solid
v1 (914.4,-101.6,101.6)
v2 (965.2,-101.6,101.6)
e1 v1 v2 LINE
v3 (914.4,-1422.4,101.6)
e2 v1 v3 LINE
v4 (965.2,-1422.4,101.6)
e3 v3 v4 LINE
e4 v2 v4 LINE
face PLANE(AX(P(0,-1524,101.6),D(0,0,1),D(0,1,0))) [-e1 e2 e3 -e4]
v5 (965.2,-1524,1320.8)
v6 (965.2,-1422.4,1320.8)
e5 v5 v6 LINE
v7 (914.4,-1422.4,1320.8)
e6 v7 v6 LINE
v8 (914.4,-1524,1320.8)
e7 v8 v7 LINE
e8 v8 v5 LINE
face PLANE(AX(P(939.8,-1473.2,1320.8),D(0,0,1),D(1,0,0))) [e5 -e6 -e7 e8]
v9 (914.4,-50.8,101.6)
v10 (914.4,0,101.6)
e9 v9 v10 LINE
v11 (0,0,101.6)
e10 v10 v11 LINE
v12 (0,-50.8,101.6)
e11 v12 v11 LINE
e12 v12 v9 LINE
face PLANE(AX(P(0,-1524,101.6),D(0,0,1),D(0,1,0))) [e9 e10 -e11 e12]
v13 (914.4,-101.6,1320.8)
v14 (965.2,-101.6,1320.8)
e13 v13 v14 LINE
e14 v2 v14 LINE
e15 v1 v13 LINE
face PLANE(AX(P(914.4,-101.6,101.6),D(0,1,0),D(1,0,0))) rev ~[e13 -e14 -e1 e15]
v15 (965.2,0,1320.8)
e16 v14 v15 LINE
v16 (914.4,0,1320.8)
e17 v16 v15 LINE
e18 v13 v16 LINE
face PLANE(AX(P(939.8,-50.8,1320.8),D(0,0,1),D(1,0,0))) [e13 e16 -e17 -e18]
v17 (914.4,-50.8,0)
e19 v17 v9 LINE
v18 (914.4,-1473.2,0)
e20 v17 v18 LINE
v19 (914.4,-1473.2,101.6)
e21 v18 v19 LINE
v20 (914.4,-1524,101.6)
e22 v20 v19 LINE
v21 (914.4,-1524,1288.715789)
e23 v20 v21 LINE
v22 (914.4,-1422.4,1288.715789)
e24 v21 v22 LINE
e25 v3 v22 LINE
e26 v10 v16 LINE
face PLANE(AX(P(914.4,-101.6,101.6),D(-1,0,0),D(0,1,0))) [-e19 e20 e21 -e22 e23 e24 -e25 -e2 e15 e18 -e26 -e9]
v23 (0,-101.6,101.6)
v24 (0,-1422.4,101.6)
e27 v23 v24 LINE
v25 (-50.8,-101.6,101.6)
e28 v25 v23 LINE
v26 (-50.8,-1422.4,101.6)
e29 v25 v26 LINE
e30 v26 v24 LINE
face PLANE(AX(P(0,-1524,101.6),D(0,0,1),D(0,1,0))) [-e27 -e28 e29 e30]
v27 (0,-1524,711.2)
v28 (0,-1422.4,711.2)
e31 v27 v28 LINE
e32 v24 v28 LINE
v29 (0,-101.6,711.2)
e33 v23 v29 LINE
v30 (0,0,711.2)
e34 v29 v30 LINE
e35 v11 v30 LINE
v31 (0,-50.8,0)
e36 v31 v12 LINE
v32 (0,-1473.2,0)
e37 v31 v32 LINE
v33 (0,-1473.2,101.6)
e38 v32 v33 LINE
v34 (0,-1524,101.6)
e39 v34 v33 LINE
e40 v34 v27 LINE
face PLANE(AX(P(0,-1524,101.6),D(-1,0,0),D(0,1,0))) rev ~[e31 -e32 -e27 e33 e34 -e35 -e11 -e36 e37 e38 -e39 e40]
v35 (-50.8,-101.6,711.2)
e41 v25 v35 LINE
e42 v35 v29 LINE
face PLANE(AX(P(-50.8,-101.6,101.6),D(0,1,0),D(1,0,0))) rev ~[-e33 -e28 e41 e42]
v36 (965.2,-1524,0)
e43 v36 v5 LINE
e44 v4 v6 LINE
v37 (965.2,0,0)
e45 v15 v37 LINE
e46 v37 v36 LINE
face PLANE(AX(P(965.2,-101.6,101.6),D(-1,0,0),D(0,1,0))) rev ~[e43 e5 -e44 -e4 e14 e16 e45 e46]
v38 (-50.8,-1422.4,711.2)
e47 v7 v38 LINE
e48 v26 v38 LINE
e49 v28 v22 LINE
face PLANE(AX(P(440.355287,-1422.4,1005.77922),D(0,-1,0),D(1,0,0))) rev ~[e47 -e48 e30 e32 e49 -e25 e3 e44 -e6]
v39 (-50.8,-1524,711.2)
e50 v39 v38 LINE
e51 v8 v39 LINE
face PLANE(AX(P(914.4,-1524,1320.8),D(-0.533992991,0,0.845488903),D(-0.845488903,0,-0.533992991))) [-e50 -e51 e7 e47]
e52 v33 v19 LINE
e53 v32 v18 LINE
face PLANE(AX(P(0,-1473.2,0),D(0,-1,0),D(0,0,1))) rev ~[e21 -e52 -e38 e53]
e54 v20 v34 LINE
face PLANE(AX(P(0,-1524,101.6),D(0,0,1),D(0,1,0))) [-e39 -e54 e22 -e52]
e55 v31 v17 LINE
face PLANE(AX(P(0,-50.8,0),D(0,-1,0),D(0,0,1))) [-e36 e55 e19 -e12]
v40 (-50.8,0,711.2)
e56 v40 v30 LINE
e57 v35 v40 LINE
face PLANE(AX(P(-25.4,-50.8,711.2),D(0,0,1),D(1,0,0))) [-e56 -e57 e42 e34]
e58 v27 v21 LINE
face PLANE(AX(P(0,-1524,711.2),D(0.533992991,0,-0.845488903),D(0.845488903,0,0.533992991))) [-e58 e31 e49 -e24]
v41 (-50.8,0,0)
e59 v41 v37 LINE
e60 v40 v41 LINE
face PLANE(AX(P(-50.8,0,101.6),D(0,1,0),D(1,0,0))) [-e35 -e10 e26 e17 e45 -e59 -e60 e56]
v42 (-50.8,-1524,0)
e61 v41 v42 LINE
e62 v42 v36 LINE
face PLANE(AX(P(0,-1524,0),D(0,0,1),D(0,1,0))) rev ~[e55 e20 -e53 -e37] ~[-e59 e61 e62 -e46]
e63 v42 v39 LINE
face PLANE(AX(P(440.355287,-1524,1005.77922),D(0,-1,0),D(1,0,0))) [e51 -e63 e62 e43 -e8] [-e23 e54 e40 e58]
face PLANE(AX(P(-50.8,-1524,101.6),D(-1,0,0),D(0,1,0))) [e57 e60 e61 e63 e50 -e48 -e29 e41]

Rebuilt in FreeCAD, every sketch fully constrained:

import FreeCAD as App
import Part
import Sketcher
from FreeCAD import Vector
Q = App.Units.Quantity

doc = App.newDocument("Part")
params = doc.addObject("Spreadsheet::Sheet", "Params")
for row, (alias, value) in enumerate([
    ("sketch1_width", "2 in"),
    ("sketch1_height", "4 in"),
    ("pad1_length", "60 in"),
    ("sketch2_width", "2 in"),
    ("sketch2_height", "4 in"),
    ("pad2_length", "36 in"),
    ("sketch3_width", "2 in"),
    ("sketch3_height", "4 in"),
    ("pad3_length", "60 in"),
    ("sketch4_width", "2 in"),
    ("sketch4_height", "4 in"),
    ("pad4_length", "36 in"),
    ("sketch5_width", "2 in"),
    ("sketch5_height", "4 in"),
    ("pad5_length", "48 in"),
    ("sketch6_width", "2 in"),
    ("sketch6_height", "4 in"),
    ("pad6_length", "48 in"),
    ("sketch7_width", "2 in"),
    ("sketch7_height", "4 in"),
    ("pad7_length", "24 in"),
    ("sketch8_width", "2 in"),
    ("sketch8_height", "4 in"),
    ("pad8_length", "24 in"),
    ("sketch9_width", "2 in"),
    ("pad9_length", "4 in"),
], start=1):
    params.set(f"A{row}", alias)
    params.set(f"B{row}", "=" + value)
    params.setAlias(f"B{row}", alias)

body = doc.addObject("PartDesign::Body", "Body")

# Sketch on XZ plane
sketch1 = doc.addObject("Sketcher::SketchObject", "Sketch")
body.addObject(sketch1)
sketch1.AttachmentSupport = (doc.XZ_Plane, [""])
sketch1.MapMode = "FlatFace"
sketch1.addGeometry([
    Part.LineSegment(Vector(-51, 102, 0), Vector(-51, 0, 0)),
    Part.LineSegment(Vector(-51, 0, 0), Vector(0, 0, 0)),
    Part.LineSegment(Vector(0, 0, 0), Vector(0, 102, 0)),
    Part.LineSegment(Vector(0, 102, 0), Vector(-51, 102, 0)),
], False)
sketch1.addConstraint([
    Sketcher.Constraint("Coincident", 0, 2, 1, 1),
    Sketcher.Constraint("Coincident", 1, 2, 2, 1),
    Sketcher.Constraint("Coincident", 2, 2, 3, 1),
    Sketcher.Constraint("Coincident", 3, 2, 0, 1),
    Sketcher.Constraint("Vertical", 0),
    Sketcher.Constraint("Horizontal", 1),
    Sketcher.Constraint("Vertical", 2),
    Sketcher.Constraint("Horizontal", 3),
    Sketcher.Constraint("Coincident", 1, 2, -1, 1),
    Sketcher.Constraint("DistanceX", 1, 1, 1, 2, Q("2 in")),
    Sketcher.Constraint("DistanceY", 0, 2, 0, 1, Q("4 in")),
])
sketch1.setExpression("Constraints[9]", "Params.sketch1_width")
sketch1.setExpression("Constraints[10]", "Params.sketch1_height")
pad1 = doc.addObject("PartDesign::Pad", "Pad")
body.addObject(pad1)
pad1.Profile = sketch1
pad1.setExpression("Length", "Params.pad1_length")

# Sketch on YZ plane
sketch2 = doc.addObject("Sketcher::SketchObject", "Sketch001")
body.addObject(sketch2)
sketch2.AttachmentSupport = (doc.YZ_Plane, [""])
sketch2.MapMode = "FlatFace"
sketch2.addGeometry([
    Part.LineSegment(Vector(-51, 102, 0), Vector(-51, 0, 0)),
    Part.LineSegment(Vector(-51, 0, 0), Vector(0, 0, 0)),
    Part.LineSegment(Vector(0, 0, 0), Vector(0, 102, 0)),
    Part.LineSegment(Vector(0, 102, 0), Vector(-51, 102, 0)),
], False)
sketch2.addConstraint([
    Sketcher.Constraint("Coincident", 0, 2, 1, 1),
    Sketcher.Constraint("Coincident", 1, 2, 2, 1),
    Sketcher.Constraint("Coincident", 2, 2, 3, 1),
    Sketcher.Constraint("Coincident", 3, 2, 0, 1),
    Sketcher.Constraint("Vertical", 0),
    Sketcher.Constraint("Horizontal", 1),
    Sketcher.Constraint("Vertical", 2),
    Sketcher.Constraint("Horizontal", 3),
    Sketcher.Constraint("Coincident", 1, 2, -1, 1),
    Sketcher.Constraint("DistanceX", 1, 1, 1, 2, Q("2 in")),
    Sketcher.Constraint("DistanceY", 0, 2, 0, 1, Q("4 in")),
])
sketch2.setExpression("Constraints[9]", "Params.sketch2_width")
sketch2.setExpression("Constraints[10]", "Params.sketch2_height")
pad2 = doc.addObject("PartDesign::Pad", "Pad001")
body.addObject(pad2)
pad2.Profile = sketch2
pad2.setExpression("Length", "Params.pad2_length")

# Sketch on XZ plane
sketch3 = doc.addObject("Sketcher::SketchObject", "Sketch002")
body.addObject(sketch3)
sketch3.AttachmentSupport = (doc.XZ_Plane, [""])
sketch3.MapMode = "FlatFace"
sketch3.addGeometry([
    Part.LineSegment(Vector(965, 102, 0), Vector(965, 0, 0)),
    Part.LineSegment(Vector(965, 0, 0), Vector(914, 0, 0)),
    Part.LineSegment(Vector(914, 0, 0), Vector(914, 102, 0)),
    Part.LineSegment(Vector(914, 102, 0), Vector(965, 102, 0)),
], False)
sketch3.addConstraint([
    Sketcher.Constraint("Coincident", 0, 2, 1, 1),
    Sketcher.Constraint("Coincident", 1, 2, 2, 1),
    Sketcher.Constraint("Coincident", 2, 2, 3, 1),
    Sketcher.Constraint("Coincident", 3, 2, 0, 1),
    Sketcher.Constraint("Vertical", 0),
    Sketcher.Constraint("Horizontal", 1),
    Sketcher.Constraint("Vertical", 2),
    Sketcher.Constraint("Horizontal", 3),
    Sketcher.Constraint("PointOnObject", 0, 2, -1),
    Sketcher.Constraint("DistanceX", 1, 2, 1, 1, Q("2 in")),
    Sketcher.Constraint("DistanceY", 0, 2, 0, 1, Q("4 in")),
    Sketcher.Constraint("DistanceX", -1, 1, 0, 2, Q("38 in")),
])
sketch3.setExpression("Constraints[9]", "Params.sketch3_width")
sketch3.setExpression("Constraints[10]", "Params.sketch3_height")
pad3 = doc.addObject("PartDesign::Pad", "Pad002")
body.addObject(pad3)
pad3.Profile = sketch3
pad3.setExpression("Length", "Params.pad3_length")

# Sketch on YZ plane
sketch4 = doc.addObject("Sketcher::SketchObject", "Sketch003")
body.addObject(sketch4)
sketch4.AttachmentSupport = (doc.YZ_Plane, [""])
sketch4.MapMode = "FlatFace"
sketch4.addGeometry([
    Part.LineSegment(Vector(-1524, 102, 0), Vector(-1524, 0, 0)),
    Part.LineSegment(Vector(-1524, 0, 0), Vector(-1473, 0, 0)),
    Part.LineSegment(Vector(-1473, 0, 0), Vector(-1473, 102, 0)),
    Part.LineSegment(Vector(-1473, 102, 0), Vector(-1524, 102, 0)),
], False)
sketch4.addConstraint([
    Sketcher.Constraint("Coincident", 0, 2, 1, 1),
    Sketcher.Constraint("Coincident", 1, 2, 2, 1),
    Sketcher.Constraint("Coincident", 2, 2, 3, 1),
    Sketcher.Constraint("Coincident", 3, 2, 0, 1),
    Sketcher.Constraint("Vertical", 0),
    Sketcher.Constraint("Horizontal", 1),
    Sketcher.Constraint("Vertical", 2),
    Sketcher.Constraint("Horizontal", 3),
    Sketcher.Constraint("PointOnObject", 0, 2, -1),
    Sketcher.Constraint("DistanceX", 1, 1, 1, 2, Q("2 in")),
    Sketcher.Constraint("DistanceY", 0, 2, 0, 1, Q("4 in")),
    Sketcher.Constraint("DistanceX", 0, 2, -1, 1, Q("60 in")),
])
sketch4.setExpression("Constraints[9]", "Params.sketch4_width")
sketch4.setExpression("Constraints[10]", "Params.sketch4_height")
pad4 = doc.addObject("PartDesign::Pad", "Pad003")
body.addObject(pad4)
pad4.Profile = sketch4
pad4.setExpression("Length", "Params.pad4_length")

# Sketch on XY plane
sketch5 = doc.addObject("Sketcher::SketchObject", "Sketch004")
body.addObject(sketch5)
sketch5.AttachmentSupport = (doc.XY_Plane, [""])
sketch5.MapMode = "FlatFace"
sketch5.AttachmentOffset = App.Placement(Vector(0, 0, 4 * 25.4), App.Rotation())
sketch5.addGeometry([
    Part.LineSegment(Vector(914, -1422, 0), Vector(914, -1524, 0)),
    Part.LineSegment(Vector(914, -1524, 0), Vector(965, -1524, 0)),
    Part.LineSegment(Vector(965, -1524, 0), Vector(965, -1422, 0)),
    Part.LineSegment(Vector(965, -1422, 0), Vector(914, -1422, 0)),
], False)
sketch5.addConstraint([
    Sketcher.Constraint("Coincident", 0, 2, 1, 1),
    Sketcher.Constraint("Coincident", 1, 2, 2, 1),
    Sketcher.Constraint("Coincident", 2, 2, 3, 1),
    Sketcher.Constraint("Coincident", 3, 2, 0, 1),
    Sketcher.Constraint("Vertical", 0),
    Sketcher.Constraint("Horizontal", 1),
    Sketcher.Constraint("Vertical", 2),
    Sketcher.Constraint("Horizontal", 3),
    Sketcher.Constraint("DistanceX", 1, 1, 1, 2, Q("2 in")),
    Sketcher.Constraint("DistanceY", 0, 2, 0, 1, Q("4 in")),
    Sketcher.Constraint("DistanceX", -1, 1, 0, 2, Q("36 in")),
    Sketcher.Constraint("DistanceY", 0, 2, -1, 1, Q("60 in")),
])
sketch5.setExpression("Constraints[8]", "Params.sketch5_width")
sketch5.setExpression("Constraints[9]", "Params.sketch5_height")
pad5 = doc.addObject("PartDesign::Pad", "Pad004")
body.addObject(pad5)
pad5.Profile = sketch5
pad5.setExpression("Length", "Params.pad5_length")

# Sketch on XY plane
sketch6 = doc.addObject("Sketcher::SketchObject", "Sketch005")
body.addObject(sketch6)
sketch6.AttachmentSupport = (doc.XY_Plane, [""])
sketch6.MapMode = "FlatFace"
sketch6.AttachmentOffset = App.Placement(Vector(0, 0, 4 * 25.4), App.Rotation())
sketch6.addGeometry([
    Part.LineSegment(Vector(914, 0, 0), Vector(914, -102, 0)),
    Part.LineSegment(Vector(914, -102, 0), Vector(965, -102, 0)),
    Part.LineSegment(Vector(965, -102, 0), Vector(965, 0, 0)),
    Part.LineSegment(Vector(965, 0, 0), Vector(914, 0, 0)),
], False)
sketch6.addConstraint([
    Sketcher.Constraint("Coincident", 0, 2, 1, 1),
    Sketcher.Constraint("Coincident", 1, 2, 2, 1),
    Sketcher.Constraint("Coincident", 2, 2, 3, 1),
    Sketcher.Constraint("Coincident", 3, 2, 0, 1),
    Sketcher.Constraint("Vertical", 0),
    Sketcher.Constraint("Horizontal", 1),
    Sketcher.Constraint("Vertical", 2),
    Sketcher.Constraint("Horizontal", 3),
    Sketcher.Constraint("PointOnObject", 2, 2, -1),
    Sketcher.Constraint("DistanceX", 1, 1, 1, 2, Q("2 in")),
    Sketcher.Constraint("DistanceY", 0, 2, 0, 1, Q("4 in")),
    Sketcher.Constraint("DistanceX", -1, 1, 0, 2, Q("36 in")),
])
sketch6.setExpression("Constraints[9]", "Params.sketch6_width")
sketch6.setExpression("Constraints[10]", "Params.sketch6_height")
pad6 = doc.addObject("PartDesign::Pad", "Pad005")
body.addObject(pad6)
pad6.Profile = sketch6
pad6.setExpression("Length", "Params.pad6_length")

# Sketch on XY plane
sketch7 = doc.addObject("Sketcher::SketchObject", "Sketch006")
body.addObject(sketch7)
sketch7.AttachmentSupport = (doc.XY_Plane, [""])
sketch7.MapMode = "FlatFace"
sketch7.AttachmentOffset = App.Placement(Vector(0, 0, 4 * 25.4), App.Rotation())
sketch7.addGeometry([
    Part.LineSegment(Vector(-51, 0, 0), Vector(-51, -102, 0)),
    Part.LineSegment(Vector(-51, -102, 0), Vector(0, -102, 0)),
    Part.LineSegment(Vector(0, -102, 0), Vector(0, 0, 0)),
    Part.LineSegment(Vector(0, 0, 0), Vector(-51, 0, 0)),
], False)
sketch7.addConstraint([
    Sketcher.Constraint("Coincident", 0, 2, 1, 1),
    Sketcher.Constraint("Coincident", 1, 2, 2, 1),
    Sketcher.Constraint("Coincident", 2, 2, 3, 1),
    Sketcher.Constraint("Coincident", 3, 2, 0, 1),
    Sketcher.Constraint("Vertical", 0),
    Sketcher.Constraint("Horizontal", 1),
    Sketcher.Constraint("Vertical", 2),
    Sketcher.Constraint("Horizontal", 3),
    Sketcher.Constraint("Coincident", 2, 2, -1, 1),
    Sketcher.Constraint("DistanceX", 1, 1, 1, 2, Q("2 in")),
    Sketcher.Constraint("DistanceY", 0, 2, 0, 1, Q("4 in")),
])
sketch7.setExpression("Constraints[9]", "Params.sketch7_width")
sketch7.setExpression("Constraints[10]", "Params.sketch7_height")
pad7 = doc.addObject("PartDesign::Pad", "Pad006")
body.addObject(pad7)
pad7.Profile = sketch7
pad7.setExpression("Length", "Params.pad7_length")

# Sketch on XY plane
sketch8 = doc.addObject("Sketcher::SketchObject", "Sketch007")
body.addObject(sketch8)
sketch8.AttachmentSupport = (doc.XY_Plane, [""])
sketch8.MapMode = "FlatFace"
sketch8.AttachmentOffset = App.Placement(Vector(0, 0, 4 * 25.4), App.Rotation())
sketch8.addGeometry([
    Part.LineSegment(Vector(-51, -1422, 0), Vector(-51, -1524, 0)),
    Part.LineSegment(Vector(-51, -1524, 0), Vector(0, -1524, 0)),
    Part.LineSegment(Vector(0, -1524, 0), Vector(0, -1422, 0)),
    Part.LineSegment(Vector(0, -1422, 0), Vector(-51, -1422, 0)),
], False)
sketch8.addConstraint([
    Sketcher.Constraint("Coincident", 0, 2, 1, 1),
    Sketcher.Constraint("Coincident", 1, 2, 2, 1),
    Sketcher.Constraint("Coincident", 2, 2, 3, 1),
    Sketcher.Constraint("Coincident", 3, 2, 0, 1),
    Sketcher.Constraint("Vertical", 0),
    Sketcher.Constraint("Horizontal", 1),
    Sketcher.Constraint("Vertical", 2),
    Sketcher.Constraint("Horizontal", 3),
    Sketcher.Constraint("PointOnObject", 1, 2, -2),
    Sketcher.Constraint("DistanceX", 1, 1, 1, 2, Q("2 in")),
    Sketcher.Constraint("DistanceY", 0, 2, 0, 1, Q("4 in")),
    Sketcher.Constraint("DistanceY", 0, 2, -1, 1, Q("60 in")),
])
sketch8.setExpression("Constraints[9]", "Params.sketch8_width")
sketch8.setExpression("Constraints[10]", "Params.sketch8_height")
pad8 = doc.addObject("PartDesign::Pad", "Pad007")
body.addObject(pad8)
pad8.Profile = sketch8
pad8.setExpression("Length", "Params.pad8_length")

# Sketch on XZ plane
sketch9 = doc.addObject("Sketcher::SketchObject", "Sketch008")
body.addObject(sketch9)
sketch9.AttachmentSupport = (doc.XZ_Plane, [""])
sketch9.MapMode = "FlatFace"
sketch9.AttachmentOffset = App.Placement(Vector(0, 0, 60 * 25.4), App.Rotation())
sketch9.addGeometry([
    Part.LineSegment(Vector(914, 1321, 0), Vector(-51, 711, 0)),
    Part.LineSegment(Vector(-51, 711, 0), Vector(0, 711, 0)),
    Part.LineSegment(Vector(0, 711, 0), Vector(914, 1289, 0)),
    Part.LineSegment(Vector(914, 1289, 0), Vector(914, 1321, 0)),
], False)
sketch9.addConstraint([
    Sketcher.Constraint("Coincident", 0, 2, 1, 1),
    Sketcher.Constraint("Coincident", 1, 2, 2, 1),
    Sketcher.Constraint("Coincident", 2, 2, 3, 1),
    Sketcher.Constraint("Coincident", 3, 2, 0, 1),
    Sketcher.Constraint("Horizontal", 1),
    Sketcher.Constraint("Vertical", 3),
    Sketcher.Constraint("PointOnObject", 1, 2, -2),
    Sketcher.Constraint("Parallel", 0, 2),
    Sketcher.Constraint("DistanceX", 1, 1, 1, 2, Q("2 in")),
    Sketcher.Constraint("DistanceY", -1, 1, 0, 2, Q("28 in")),
    Sketcher.Constraint("DistanceX", -1, 1, 2, 2, Q("36 in")),
    Sketcher.Constraint("DistanceY", -1, 1, 3, 2, Q("52 in")),
])
sketch9.setExpression("Constraints[8]", "Params.sketch9_width")
pad9 = doc.addObject("PartDesign::Pad", "Pad008")
body.addObject(pad9)
pad9.Profile = sketch9
pad9.setExpression("Length", "Params.pad9_length")
pad9.Reversed = True

doc.recompute()
